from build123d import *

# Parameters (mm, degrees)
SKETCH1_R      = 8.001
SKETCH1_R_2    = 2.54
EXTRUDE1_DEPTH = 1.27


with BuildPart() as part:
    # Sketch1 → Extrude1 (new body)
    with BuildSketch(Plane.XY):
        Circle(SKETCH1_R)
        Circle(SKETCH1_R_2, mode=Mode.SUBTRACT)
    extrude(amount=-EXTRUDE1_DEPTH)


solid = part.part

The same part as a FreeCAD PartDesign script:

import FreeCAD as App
import Part
import Sketcher

V = App.Vector
Q = App.Units.Quantity

doc = App.newDocument("Part")
body = doc.addObject("PartDesign::Body", "Body")

sketch1 = body.newObject("Sketcher::SketchObject", "Sketch")
sketch1.AttachmentSupport = (doc.getObject("XY_Plane"), [""])
sketch1.MapMode = "FlatFace"
sketch1.addGeometry([
    Part.Circle(V(0, 0, 0), V(0, 0, 1), 8.001),
    Part.Circle(V(0, 0, 0), V(0, 0, 1), 2.54),
], False)
sketch1.addConstraint([
    Sketcher.Constraint("Coincident", 0, 3, -1, 1),
    Sketcher.Constraint("Coincident", 1, 3, -1, 1),
    Sketcher.Constraint("Diameter", 1, Q("0.2 in")),
    Sketcher.Constraint("Diameter", 0, Q("0.63 in")),
])
pad1 = body.newObject("PartDesign::Pad", "Pad")
pad1.Profile = sketch1
pad1.Length = Q("0.05 in")
pad1.Reversed = True

doc.recompute()
